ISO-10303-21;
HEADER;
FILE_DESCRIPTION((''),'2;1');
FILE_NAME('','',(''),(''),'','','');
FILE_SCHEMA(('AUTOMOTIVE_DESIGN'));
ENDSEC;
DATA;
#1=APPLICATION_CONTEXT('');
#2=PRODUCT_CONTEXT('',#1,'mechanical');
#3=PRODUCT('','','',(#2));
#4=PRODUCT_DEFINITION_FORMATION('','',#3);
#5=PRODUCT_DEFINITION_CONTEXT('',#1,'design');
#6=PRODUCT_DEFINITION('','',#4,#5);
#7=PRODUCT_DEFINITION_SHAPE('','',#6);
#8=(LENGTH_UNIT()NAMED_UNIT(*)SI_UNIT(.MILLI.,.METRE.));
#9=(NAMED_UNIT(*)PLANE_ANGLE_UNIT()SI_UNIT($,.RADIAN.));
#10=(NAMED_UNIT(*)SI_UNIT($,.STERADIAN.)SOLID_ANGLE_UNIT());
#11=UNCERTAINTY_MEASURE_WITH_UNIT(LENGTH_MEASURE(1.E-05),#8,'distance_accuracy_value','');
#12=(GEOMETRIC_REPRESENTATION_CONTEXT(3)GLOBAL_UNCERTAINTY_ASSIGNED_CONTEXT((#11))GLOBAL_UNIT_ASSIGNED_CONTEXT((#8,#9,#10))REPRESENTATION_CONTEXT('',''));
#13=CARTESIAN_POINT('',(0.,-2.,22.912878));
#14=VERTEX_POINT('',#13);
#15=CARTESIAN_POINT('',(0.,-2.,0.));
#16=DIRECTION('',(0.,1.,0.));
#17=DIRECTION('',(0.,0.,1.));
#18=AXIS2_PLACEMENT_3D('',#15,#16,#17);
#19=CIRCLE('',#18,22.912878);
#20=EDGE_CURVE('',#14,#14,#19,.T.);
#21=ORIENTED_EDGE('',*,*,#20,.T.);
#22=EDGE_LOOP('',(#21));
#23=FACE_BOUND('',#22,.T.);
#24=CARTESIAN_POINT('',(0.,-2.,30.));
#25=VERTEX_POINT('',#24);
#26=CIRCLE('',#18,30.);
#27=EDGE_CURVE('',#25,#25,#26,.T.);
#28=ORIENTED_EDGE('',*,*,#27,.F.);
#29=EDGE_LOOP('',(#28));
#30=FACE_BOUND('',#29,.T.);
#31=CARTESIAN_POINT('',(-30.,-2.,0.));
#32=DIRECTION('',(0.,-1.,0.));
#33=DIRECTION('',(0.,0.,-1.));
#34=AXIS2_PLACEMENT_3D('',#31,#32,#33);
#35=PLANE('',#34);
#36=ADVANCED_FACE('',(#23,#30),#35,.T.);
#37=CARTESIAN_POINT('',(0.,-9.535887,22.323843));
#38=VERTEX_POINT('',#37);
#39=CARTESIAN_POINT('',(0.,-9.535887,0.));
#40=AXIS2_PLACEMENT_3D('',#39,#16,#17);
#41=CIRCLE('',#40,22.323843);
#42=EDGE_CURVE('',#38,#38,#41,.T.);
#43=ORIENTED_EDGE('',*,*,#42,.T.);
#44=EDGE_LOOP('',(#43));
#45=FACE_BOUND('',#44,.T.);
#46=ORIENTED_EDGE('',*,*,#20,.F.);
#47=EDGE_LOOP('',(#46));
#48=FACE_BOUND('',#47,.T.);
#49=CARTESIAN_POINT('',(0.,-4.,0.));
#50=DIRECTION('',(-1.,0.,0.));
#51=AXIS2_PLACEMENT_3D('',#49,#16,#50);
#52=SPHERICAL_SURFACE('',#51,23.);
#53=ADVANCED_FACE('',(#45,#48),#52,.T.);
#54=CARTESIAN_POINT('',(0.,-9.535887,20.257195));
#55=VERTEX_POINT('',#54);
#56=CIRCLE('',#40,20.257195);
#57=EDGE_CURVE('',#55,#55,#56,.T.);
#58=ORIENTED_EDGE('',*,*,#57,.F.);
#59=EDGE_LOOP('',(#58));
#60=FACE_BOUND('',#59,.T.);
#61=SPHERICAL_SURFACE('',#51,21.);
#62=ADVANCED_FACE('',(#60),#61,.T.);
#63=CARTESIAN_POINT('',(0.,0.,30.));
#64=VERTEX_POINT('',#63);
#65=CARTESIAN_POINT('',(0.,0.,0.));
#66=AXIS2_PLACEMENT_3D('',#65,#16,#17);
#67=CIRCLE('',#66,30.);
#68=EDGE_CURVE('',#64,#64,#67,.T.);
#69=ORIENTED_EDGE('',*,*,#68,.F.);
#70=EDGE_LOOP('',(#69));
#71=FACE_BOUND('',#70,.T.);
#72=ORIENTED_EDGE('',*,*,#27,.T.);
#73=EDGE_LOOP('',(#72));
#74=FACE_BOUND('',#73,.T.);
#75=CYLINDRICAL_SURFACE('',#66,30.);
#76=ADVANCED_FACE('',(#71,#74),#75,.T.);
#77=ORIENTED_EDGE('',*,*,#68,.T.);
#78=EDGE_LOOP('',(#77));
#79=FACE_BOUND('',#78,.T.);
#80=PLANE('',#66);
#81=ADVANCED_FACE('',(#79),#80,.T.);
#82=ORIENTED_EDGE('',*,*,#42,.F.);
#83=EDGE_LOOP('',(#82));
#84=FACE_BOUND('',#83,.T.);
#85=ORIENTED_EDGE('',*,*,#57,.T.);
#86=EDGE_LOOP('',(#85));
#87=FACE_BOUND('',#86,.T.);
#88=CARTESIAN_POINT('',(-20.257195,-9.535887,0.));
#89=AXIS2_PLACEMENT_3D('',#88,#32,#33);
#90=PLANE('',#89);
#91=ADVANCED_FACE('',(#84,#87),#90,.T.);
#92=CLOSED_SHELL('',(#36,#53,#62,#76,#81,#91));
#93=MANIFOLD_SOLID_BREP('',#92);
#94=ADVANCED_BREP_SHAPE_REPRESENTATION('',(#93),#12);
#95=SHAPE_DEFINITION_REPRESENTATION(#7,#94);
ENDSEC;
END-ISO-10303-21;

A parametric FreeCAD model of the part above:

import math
import FreeCAD as App
import Part
import Sketcher

V = App.Vector

doc = App.newDocument("Part")
body = doc.addObject("PartDesign::Body", "Body")

# Sketch on XY plane
sketch1 = body.newObject("Sketcher::SketchObject", "Sketch")
sketch1.AttachmentSupport = (doc.getObject("XY_Plane"), [""])
sketch1.MapMode = "FlatFace"
sketch1.addGeometry(Part.LineSegment(V(0, 0, 0), V(-30, 0, 0)), False)
sketch1.addGeometry(Part.LineSegment(V(-30, 0, 0), V(-30, -2, 0)), False)
sketch1.addGeometry(Part.LineSegment(V(-30, -2, 0), V(-22.9, -2, 0)), False)
sketch1.addGeometry(Part.ArcOfCircle(Part.Circle(V(0, -4, 0), V(0, 0, 1), 23), math.radians(175.01), math.radians(193.93)), False)
sketch1.addGeometry(Part.LineSegment(V(-22.3, -9.5, 0), V(-20.3, -9.5, 0)), False)
sketch1.addGeometry(Part.ArcOfCircle(Part.Circle(V(0, -4, 0), V(0, 0, 1), 21), math.radians(-165), math.radians(-90)), False)
sketch1.addGeometry(Part.LineSegment(V(0, -25, 0), V(0, 0, 0)), False)
sketch1.addConstraint(Sketcher.Constraint("Coincident", 0, 2, 1, 1))
sketch1.addConstraint(Sketcher.Constraint("Coincident", 1, 2, 2, 1))
sketch1.addConstraint(Sketcher.Constraint("Coincident", 2, 2, 3, 1))
sketch1.addConstraint(Sketcher.Constraint("Coincident", 3, 2, 4, 1))
sketch1.addConstraint(Sketcher.Constraint("Coincident", 4, 2, 5, 1))
sketch1.addConstraint(Sketcher.Constraint("Coincident", 5, 2, 6, 1))
sketch1.addConstraint(Sketcher.Constraint("Coincident", 6, 2, 0, 1))
sketch1.addConstraint(Sketcher.Constraint("Horizontal", 0))
sketch1.addConstraint(Sketcher.Constraint("Vertical", 1))
sketch1.addConstraint(Sketcher.Constraint("Horizontal", 2))
sketch1.addConstraint(Sketcher.Constraint("Horizontal", 4))
sketch1.addConstraint(Sketcher.Constraint("Vertical", 6))
sketch1.addConstraint(Sketcher.Constraint("Coincident", 6, 2, -1, 1))
sketch1.addConstraint(Sketcher.Constraint("Coincident", 5, 3, 3, 3))
sketch1.addConstraint(Sketcher.Constraint("PointOnObject", 3, 3, -2))
sketch1.addConstraint(Sketcher.Constraint("Radius", 3, 23.0))
sketch1.addConstraint(Sketcher.Constraint("Radius", 5, 21.0))
sketch1.addConstraint(Sketcher.Constraint("DistanceX", 0, 2, 0, 1, 30.0))
sketch1.addConstraint(Sketcher.Constraint("DistanceY", 1, 2, 1, 1, 2.0))
sketch1.addConstraint(Sketcher.Constraint("DistanceY", 6, 1, 6, 2, 25.0))
sketch1.addConstraint(Sketcher.Constraint("DistanceX", 4, 1, 4, 2, 2.066648))
revolution = body.newObject("PartDesign::Revolution", "Revolution")
revolution.Profile = sketch1
revolution.ReferenceAxis = (sketch1, ["V_Axis"])
revolution.Angle = 360

doc.recompute()
